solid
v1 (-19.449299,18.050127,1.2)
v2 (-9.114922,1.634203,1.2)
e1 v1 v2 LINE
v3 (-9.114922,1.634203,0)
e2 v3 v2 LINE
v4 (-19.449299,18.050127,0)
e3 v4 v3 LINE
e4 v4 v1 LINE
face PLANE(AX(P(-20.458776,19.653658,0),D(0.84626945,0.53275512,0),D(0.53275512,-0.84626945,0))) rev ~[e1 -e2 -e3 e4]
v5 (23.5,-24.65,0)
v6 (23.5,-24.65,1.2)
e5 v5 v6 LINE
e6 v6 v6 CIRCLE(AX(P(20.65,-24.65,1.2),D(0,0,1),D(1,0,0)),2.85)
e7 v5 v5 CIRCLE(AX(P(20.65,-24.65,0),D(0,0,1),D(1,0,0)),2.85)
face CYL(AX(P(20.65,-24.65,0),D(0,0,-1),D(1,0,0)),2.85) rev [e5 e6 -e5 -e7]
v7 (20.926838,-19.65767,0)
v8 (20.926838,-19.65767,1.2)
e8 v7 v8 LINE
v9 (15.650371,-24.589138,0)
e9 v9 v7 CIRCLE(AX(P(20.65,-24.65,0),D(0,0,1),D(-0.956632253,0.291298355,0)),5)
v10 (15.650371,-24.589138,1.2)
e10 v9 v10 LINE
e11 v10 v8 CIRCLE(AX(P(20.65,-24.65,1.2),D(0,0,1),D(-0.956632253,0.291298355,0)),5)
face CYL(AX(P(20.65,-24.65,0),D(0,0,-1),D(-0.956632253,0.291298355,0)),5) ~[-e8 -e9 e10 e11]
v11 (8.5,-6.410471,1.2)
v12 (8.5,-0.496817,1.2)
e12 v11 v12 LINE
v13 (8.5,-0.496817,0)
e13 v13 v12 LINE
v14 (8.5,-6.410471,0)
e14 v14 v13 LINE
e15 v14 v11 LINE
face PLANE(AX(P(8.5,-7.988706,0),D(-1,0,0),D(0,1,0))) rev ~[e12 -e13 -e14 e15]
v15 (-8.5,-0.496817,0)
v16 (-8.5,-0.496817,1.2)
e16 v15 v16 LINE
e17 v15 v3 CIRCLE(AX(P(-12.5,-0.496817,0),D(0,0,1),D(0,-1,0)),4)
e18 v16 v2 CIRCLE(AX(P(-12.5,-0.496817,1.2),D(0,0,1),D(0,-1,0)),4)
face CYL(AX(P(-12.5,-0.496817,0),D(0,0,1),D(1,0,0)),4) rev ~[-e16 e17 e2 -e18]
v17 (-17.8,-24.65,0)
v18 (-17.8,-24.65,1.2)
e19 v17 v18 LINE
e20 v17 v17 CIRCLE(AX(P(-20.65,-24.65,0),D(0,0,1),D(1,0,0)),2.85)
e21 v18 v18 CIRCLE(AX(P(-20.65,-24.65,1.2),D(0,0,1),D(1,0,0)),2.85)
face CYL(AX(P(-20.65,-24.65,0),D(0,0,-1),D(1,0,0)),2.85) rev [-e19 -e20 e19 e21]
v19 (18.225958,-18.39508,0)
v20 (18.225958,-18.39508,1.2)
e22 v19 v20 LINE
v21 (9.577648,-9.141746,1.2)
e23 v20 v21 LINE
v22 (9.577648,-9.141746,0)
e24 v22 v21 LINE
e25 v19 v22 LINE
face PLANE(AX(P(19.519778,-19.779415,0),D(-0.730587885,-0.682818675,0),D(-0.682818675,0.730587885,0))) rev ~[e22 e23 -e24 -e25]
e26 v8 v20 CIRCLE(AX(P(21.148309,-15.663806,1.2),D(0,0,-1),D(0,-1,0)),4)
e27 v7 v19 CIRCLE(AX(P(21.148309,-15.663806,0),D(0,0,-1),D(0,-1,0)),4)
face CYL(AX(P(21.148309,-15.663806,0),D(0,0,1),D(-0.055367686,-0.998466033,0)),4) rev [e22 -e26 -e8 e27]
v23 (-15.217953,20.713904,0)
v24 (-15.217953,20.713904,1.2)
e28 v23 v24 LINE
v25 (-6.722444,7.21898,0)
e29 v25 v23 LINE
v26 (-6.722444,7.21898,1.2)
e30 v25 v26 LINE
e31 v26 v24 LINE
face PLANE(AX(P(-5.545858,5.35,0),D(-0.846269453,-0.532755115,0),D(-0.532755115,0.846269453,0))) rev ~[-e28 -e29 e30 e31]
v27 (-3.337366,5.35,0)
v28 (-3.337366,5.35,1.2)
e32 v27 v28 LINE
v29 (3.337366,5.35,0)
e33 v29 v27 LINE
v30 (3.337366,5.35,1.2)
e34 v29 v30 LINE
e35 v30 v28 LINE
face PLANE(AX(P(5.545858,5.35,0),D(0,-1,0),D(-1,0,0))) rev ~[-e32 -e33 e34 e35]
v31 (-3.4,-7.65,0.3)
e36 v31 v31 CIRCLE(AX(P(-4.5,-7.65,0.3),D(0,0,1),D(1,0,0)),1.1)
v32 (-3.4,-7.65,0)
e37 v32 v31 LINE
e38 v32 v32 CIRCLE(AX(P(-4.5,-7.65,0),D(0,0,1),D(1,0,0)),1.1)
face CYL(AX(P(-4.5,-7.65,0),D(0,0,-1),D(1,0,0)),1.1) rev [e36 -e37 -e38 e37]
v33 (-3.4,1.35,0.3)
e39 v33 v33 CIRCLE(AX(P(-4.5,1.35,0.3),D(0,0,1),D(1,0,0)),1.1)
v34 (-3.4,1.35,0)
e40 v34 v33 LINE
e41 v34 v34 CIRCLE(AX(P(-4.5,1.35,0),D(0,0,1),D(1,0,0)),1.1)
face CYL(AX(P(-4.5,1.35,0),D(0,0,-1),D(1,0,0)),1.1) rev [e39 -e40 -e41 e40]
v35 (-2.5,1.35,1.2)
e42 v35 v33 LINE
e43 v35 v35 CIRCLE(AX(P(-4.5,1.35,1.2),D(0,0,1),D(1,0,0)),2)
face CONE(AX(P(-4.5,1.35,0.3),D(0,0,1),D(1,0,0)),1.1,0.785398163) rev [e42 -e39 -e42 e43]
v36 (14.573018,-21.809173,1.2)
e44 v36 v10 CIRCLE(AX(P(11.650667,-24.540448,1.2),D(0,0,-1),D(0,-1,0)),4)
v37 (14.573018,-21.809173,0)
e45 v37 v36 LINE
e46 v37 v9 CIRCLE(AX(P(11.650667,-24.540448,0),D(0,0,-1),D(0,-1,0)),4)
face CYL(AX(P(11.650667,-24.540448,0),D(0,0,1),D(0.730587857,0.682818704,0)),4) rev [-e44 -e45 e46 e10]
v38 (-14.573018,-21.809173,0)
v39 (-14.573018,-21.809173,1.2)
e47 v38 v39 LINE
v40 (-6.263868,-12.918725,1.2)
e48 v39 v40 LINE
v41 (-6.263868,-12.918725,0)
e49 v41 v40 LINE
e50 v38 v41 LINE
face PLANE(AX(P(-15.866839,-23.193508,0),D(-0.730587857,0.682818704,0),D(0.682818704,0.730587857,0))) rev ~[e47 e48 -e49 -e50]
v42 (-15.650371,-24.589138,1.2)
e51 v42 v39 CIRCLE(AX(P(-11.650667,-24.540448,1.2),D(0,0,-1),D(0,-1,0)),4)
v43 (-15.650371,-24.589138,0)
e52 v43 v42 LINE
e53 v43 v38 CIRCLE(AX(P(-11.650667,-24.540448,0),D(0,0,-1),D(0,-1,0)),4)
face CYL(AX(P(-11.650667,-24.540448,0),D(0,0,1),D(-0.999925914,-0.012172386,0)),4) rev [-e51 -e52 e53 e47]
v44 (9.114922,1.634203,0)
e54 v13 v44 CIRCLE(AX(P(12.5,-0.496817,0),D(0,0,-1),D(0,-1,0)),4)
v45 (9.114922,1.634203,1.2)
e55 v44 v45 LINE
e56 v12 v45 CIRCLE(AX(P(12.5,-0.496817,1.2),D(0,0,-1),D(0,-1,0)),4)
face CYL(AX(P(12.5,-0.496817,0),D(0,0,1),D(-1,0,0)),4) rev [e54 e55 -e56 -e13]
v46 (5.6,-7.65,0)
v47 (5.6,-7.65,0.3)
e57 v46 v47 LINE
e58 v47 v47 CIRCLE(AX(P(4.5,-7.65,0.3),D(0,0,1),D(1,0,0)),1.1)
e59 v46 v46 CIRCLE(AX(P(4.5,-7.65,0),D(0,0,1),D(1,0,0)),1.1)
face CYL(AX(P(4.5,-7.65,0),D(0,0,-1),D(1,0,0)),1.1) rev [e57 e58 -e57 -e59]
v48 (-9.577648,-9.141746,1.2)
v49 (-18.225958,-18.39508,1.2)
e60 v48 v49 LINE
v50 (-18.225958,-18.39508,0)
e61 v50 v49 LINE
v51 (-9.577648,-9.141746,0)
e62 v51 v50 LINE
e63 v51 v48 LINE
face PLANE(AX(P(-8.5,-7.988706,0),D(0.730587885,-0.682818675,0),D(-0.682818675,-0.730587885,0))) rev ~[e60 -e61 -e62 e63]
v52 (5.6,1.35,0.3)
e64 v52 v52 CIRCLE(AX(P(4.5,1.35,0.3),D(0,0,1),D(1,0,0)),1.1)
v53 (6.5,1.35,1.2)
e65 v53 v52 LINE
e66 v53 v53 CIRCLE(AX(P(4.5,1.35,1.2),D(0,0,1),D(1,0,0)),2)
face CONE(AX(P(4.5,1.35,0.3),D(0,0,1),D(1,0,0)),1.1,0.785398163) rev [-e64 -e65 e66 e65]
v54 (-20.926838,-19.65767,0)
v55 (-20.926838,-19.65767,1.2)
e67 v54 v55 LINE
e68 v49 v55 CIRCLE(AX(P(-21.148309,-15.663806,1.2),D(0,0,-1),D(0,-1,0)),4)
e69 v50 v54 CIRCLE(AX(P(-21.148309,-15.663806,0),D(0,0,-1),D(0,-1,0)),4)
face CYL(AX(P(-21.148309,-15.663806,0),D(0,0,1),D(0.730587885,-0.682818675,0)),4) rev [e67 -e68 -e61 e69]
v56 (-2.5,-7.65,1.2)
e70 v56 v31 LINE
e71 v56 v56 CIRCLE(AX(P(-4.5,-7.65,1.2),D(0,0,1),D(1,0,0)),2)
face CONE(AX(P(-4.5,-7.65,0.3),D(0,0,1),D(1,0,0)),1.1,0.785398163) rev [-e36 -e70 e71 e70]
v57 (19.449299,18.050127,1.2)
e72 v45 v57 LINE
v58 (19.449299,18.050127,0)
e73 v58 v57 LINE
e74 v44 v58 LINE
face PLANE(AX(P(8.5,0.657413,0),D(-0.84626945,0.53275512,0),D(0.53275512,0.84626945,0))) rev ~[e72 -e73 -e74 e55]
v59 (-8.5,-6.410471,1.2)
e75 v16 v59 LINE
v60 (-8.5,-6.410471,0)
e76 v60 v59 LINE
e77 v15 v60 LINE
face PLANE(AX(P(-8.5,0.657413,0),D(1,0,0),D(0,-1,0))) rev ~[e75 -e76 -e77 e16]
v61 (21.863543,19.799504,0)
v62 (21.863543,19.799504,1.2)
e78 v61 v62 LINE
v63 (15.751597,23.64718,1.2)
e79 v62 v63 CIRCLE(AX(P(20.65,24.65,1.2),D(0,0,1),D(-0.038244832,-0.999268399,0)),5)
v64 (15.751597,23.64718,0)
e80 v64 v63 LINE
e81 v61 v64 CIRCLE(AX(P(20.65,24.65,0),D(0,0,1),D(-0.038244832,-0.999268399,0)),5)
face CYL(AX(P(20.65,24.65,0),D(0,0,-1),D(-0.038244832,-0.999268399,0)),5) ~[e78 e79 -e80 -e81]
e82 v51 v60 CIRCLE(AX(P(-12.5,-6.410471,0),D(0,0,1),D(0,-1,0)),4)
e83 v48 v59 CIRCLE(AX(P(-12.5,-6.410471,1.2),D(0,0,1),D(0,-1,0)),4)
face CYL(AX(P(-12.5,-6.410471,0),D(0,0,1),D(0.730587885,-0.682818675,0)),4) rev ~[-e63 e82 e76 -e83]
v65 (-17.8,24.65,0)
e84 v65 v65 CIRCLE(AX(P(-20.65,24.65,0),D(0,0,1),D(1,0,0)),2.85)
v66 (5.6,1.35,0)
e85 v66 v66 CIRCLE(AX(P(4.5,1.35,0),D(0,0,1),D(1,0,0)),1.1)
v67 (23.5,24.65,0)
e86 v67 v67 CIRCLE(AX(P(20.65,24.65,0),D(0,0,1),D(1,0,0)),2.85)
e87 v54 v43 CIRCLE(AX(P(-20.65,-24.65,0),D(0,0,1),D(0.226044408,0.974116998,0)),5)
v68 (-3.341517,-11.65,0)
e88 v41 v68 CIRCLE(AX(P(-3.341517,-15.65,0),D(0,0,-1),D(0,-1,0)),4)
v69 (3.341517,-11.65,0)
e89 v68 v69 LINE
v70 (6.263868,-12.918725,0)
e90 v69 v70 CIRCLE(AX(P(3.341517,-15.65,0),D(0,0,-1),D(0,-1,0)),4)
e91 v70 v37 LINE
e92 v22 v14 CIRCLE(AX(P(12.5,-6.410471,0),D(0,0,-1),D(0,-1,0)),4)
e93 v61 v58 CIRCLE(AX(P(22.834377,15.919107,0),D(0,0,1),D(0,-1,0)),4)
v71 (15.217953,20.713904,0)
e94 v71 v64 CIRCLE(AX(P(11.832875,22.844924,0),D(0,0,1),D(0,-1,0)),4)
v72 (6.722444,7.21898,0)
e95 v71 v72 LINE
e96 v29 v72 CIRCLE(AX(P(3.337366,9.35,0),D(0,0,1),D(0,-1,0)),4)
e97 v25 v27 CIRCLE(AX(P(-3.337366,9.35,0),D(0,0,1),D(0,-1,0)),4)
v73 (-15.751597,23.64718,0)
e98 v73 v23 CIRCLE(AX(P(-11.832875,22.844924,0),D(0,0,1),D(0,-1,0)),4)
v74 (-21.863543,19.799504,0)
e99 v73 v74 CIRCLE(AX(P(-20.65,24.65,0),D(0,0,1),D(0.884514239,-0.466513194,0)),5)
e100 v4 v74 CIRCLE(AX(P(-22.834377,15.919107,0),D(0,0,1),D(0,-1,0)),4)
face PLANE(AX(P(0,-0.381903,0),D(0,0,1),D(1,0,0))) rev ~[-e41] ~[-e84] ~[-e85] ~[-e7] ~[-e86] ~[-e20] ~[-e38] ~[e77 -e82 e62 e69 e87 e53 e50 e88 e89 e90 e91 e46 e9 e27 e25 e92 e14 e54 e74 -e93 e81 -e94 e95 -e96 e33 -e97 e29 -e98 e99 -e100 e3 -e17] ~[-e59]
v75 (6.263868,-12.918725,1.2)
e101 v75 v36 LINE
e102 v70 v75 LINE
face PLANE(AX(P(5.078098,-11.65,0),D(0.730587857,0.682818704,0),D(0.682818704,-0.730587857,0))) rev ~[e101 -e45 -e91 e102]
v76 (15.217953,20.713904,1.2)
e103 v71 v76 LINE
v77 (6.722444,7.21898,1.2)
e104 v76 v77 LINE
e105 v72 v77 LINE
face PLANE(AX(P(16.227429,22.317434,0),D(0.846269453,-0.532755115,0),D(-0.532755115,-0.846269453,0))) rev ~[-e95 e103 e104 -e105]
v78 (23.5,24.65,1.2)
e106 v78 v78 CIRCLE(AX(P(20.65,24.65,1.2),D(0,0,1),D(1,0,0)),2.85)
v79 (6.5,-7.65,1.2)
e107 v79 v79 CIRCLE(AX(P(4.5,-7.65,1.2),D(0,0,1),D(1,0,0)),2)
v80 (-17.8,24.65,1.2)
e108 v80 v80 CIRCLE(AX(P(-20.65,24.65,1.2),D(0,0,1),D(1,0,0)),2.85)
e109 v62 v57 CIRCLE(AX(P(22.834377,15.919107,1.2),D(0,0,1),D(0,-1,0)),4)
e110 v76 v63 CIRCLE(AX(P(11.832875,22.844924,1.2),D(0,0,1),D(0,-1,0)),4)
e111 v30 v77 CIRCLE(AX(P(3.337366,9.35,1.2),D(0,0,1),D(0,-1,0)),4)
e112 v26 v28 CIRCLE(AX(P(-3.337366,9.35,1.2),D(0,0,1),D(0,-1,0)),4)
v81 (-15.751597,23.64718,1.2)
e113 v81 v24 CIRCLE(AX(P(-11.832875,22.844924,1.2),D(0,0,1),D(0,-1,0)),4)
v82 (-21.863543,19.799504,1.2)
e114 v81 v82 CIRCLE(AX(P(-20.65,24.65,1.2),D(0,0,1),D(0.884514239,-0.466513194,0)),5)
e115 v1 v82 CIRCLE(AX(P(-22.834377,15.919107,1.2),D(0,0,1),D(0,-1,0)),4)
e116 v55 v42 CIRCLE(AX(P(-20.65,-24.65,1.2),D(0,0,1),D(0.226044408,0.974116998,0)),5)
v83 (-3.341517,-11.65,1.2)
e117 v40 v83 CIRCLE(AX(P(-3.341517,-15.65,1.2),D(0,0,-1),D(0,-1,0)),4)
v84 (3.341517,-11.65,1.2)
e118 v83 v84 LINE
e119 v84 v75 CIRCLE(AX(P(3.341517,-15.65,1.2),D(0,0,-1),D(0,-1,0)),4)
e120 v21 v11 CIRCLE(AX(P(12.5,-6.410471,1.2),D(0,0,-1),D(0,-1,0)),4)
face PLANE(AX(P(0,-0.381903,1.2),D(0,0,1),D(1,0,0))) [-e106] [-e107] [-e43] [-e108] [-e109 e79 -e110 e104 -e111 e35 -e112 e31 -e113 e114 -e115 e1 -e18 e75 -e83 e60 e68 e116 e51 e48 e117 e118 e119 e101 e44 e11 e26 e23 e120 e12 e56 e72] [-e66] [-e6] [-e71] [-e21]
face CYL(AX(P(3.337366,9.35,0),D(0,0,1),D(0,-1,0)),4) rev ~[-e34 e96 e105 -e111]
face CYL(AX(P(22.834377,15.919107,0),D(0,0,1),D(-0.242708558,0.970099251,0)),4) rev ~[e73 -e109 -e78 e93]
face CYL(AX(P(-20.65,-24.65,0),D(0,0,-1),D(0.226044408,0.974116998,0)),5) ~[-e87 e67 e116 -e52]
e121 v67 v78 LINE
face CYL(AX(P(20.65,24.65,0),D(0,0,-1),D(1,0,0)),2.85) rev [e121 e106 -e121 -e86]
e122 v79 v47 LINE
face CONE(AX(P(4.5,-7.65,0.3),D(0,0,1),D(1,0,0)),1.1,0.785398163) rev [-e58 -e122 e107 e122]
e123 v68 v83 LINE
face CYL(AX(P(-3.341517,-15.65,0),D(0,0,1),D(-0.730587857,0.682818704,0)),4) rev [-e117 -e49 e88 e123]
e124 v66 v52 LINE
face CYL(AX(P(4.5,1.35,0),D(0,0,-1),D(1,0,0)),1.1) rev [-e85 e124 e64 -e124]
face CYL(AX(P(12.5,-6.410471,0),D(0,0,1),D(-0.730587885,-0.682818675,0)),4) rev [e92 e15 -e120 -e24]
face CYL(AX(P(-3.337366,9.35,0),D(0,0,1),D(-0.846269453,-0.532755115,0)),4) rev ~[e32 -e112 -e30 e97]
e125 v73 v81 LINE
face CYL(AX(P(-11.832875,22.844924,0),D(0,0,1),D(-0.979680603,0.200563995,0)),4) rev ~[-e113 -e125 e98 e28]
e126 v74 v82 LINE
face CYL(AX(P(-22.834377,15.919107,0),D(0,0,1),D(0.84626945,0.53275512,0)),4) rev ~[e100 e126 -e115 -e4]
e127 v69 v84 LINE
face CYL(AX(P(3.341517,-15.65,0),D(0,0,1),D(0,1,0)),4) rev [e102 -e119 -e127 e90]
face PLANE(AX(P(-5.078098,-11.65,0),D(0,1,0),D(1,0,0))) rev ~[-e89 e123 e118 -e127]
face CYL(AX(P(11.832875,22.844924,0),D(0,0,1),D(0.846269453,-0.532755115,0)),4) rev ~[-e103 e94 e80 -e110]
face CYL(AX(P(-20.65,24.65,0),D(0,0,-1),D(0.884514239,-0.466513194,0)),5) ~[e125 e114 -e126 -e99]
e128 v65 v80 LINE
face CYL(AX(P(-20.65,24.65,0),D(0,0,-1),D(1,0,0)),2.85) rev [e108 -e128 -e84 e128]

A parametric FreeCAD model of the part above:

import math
import FreeCAD as App
import Part
import Sketcher

V = App.Vector


def edges_at(feature, points):
    """Names of the edges that pass closest to the given points."""
    edges = feature.Shape.Edges
    near = lambda p: min(range(len(edges)), key=lambda i: edges[i].distToShape(Part.Vertex(*p))[0])
    return sorted({f"Edge{near(p) + 1}" for p in points})

doc = App.newDocument("Part")
body = doc.addObject("PartDesign::Body", "Body")

# Sketch on XY plane
sketch1 = body.newObject("Sketcher::SketchObject", "Sketch")
sketch1.AttachmentSupport = (doc.getObject("XY_Plane"), [""])
sketch1.MapMode = "FlatFace"
sketch1.addGeometry([
    Part.LineSegment(V(-8.5, -7.988706, 0), V(-19.519778, -19.779415, 0)),  # 0
    Part.ArcOfCircle(Part.Circle(V(-20.65, -24.65, 0), V(0, 0, 1), 5), math.radians(76.935699), math.radians(376.935703)),  # 1
    Part.LineSegment(V(-15.866839, -23.193508, 0), V(-5.078098, -11.65, 0)),  # 2
    Part.LineSegment(V(-5.078098, -11.65, 0), V(5.078098, -11.65, 0)),  # 3
    Part.LineSegment(V(5.078098, -11.65, 0), V(15.866839, -23.193508, 0)),  # 4
    Part.ArcOfCircle(Part.Circle(V(20.65, -24.65, 0), V(0, 0, 1), 5), math.radians(163.064297), math.radians(463.064301)),  # 5
    Part.LineSegment(V(19.519778, -19.779415, 0), V(8.5, -7.988706, 0)),  # 6
    Part.LineSegment(V(8.5, -7.988706, 0), V(8.5, 0.657413, 0)),  # 7
    Part.LineSegment(V(8.5, 0.657413, 0), V(20.458776, 19.653658, 0)),  # 8
    Part.ArcOfCircle(Part.Circle(V(20.65, 24.65, 0), V(0, 0, 1), 5), math.radians(-92.191802), math.radians(207.808197)),  # 9
    Part.LineSegment(V(16.227429, 22.317434, 0), V(5.545858, 5.35, 0)),  # 10
    Part.LineSegment(V(5.545858, 5.35, 0), V(-5.545858, 5.35, 0)),  # 11
    Part.LineSegment(V(-5.545858, 5.35, 0), V(-16.227429, 22.317434, 0)),  # 12
    Part.ArcOfCircle(Part.Circle(V(-20.65, 24.65, 0), V(0, 0, 1), 5), math.radians(-27.808197), math.radians(272.191802)),  # 13
    Part.LineSegment(V(-20.458776, 19.653658, 0), V(-8.5, 0.657413, 0)),  # 14
    Part.LineSegment(V(-8.5, 0.657413, 0), V(-8.5, -7.988706, 0)),  # 15
    Part.Circle(V(-20.65, -24.65, 0), V(0, 0, 1), 2.85),  # 16
    Part.Circle(V(-4.5, -7.65, 0), V(0, 0, 1), 1.1),  # 17
    Part.Circle(V(20.65, -24.65, 0), V(0, 0, 1), 2.85),  # 18
    Part.Circle(V(4.5, -7.65, 0), V(0, 0, 1), 1.1),  # 19
    Part.Circle(V(-4.5, 1.35, 0), V(0, 0, 1), 1.1),  # 20
    Part.Circle(V(-20.65, 24.65, 0), V(0, 0, 1), 2.85),  # 21
    Part.Circle(V(4.5, 1.35, 0), V(0, 0, 1), 1.1),  # 22
    Part.Circle(V(20.65, 24.65, 0), V(0, 0, 1), 2.85),  # 23
], False)
sketch1.addConstraint([
    Sketcher.Constraint("Coincident", 0, 2, 1, 1),
    Sketcher.Constraint("Coincident", 1, 2, 2, 1),
    Sketcher.Constraint("Coincident", 2, 2, 3, 1),
    Sketcher.Constraint("Coincident", 3, 2, 4, 1),
    Sketcher.Constraint("Coincident", 4, 2, 5, 1),
    Sketcher.Constraint("Coincident", 5, 2, 6, 1),
    Sketcher.Constraint("Coincident", 6, 2, 7, 1),
    Sketcher.Constraint("Coincident", 7, 2, 8, 1),
    Sketcher.Constraint("Coincident", 8, 2, 9, 1),
    Sketcher.Constraint("Coincident", 9, 2, 10, 1),
    Sketcher.Constraint("Coincident", 10, 2, 11, 1),
    Sketcher.Constraint("Coincident", 11, 2, 12, 1),
    Sketcher.Constraint("Coincident", 12, 2, 13, 1),
    Sketcher.Constraint("Coincident", 13, 2, 14, 1),
    Sketcher.Constraint("Coincident", 14, 2, 15, 1),
    Sketcher.Constraint("Coincident", 15, 2, 0, 1),
    Sketcher.Constraint("Horizontal", 3),
    Sketcher.Constraint("Vertical", 7),
    Sketcher.Constraint("Horizontal", 11),
    Sketcher.Constraint("Vertical", 15),
    Sketcher.Constraint("Coincident", 16, 3, 1, 3),
    Sketcher.Constraint("Coincident", 18, 3, 5, 3),
    Sketcher.Constraint("Coincident", 21, 3, 13, 3),
    Sketcher.Constraint("Coincident", 23, 3, 9, 3),
    Sketcher.Constraint("Equal", 1, 5),
    Sketcher.Constraint("Equal", 5, 9),
    Sketcher.Constraint("Equal", 9, 13),
    Sketcher.Constraint("Equal", 16, 18),
    Sketcher.Constraint("Equal", 17, 19),
    Sketcher.Constraint("Equal", 19, 20),
    Sketcher.Constraint("Equal", 18, 21),
    Sketcher.Constraint("Equal", 20, 22),
    Sketcher.Constraint("Equal", 21, 23),
    Sketcher.Constraint("Symmetric", 1, 3, 9, 3, -1, 1),
    Sketcher.Constraint("Symmetric", 5, 3, 13, 3, -1, 1),
    Sketcher.Constraint("Symmetric", 1, 3, 5, 3, -2),
    Sketcher.Constraint("Symmetric", 17, 3, 19, 3, -2),
    Sketcher.Constraint("Symmetric", 20, 3, 22, 3, -2),
    Sketcher.Constraint("Symmetric", 7, 2, 14, 2, -2),
    Sketcher.Constraint("Parallel", 0, 2),
    Sketcher.Constraint("Parallel", 4, 6),
    Sketcher.Constraint("Parallel", 8, 10),
    Sketcher.Constraint("Parallel", 12, 14),
    Sketcher.Constraint("Horizontal", 1, 2, 4, 2),
    Sketcher.Constraint("Horizontal", 0, 2, 5, 2),
    Sketcher.Constraint("Horizontal", 9, 2, 12, 2),
    Sketcher.Constraint("Horizontal", 8, 2, 13, 2),
    Sketcher.Constraint("Horizontal", 6, 2, 15, 2),
    Sketcher.Constraint("Vertical", 17, 3, 20, 3),
    Sketcher.Constraint("Radius", 1, 5.0),
    Sketcher.Constraint("Diameter", 16, 5.7),
    Sketcher.Constraint("Diameter", 17, 2.2),
    Sketcher.Constraint("DistanceY", 1, 3, 17, 3, 17.0),
    Sketcher.Constraint("DistanceX", 17, 3, 19, 3, 9.0),
    Sketcher.Constraint("DistanceY", 17, 3, 20, 3, 9.0),
    Sketcher.Constraint("DistanceY", 2, 2, 17, 3, 4.0),
    Sketcher.Constraint("DistanceX", 19, 3, 6, 2, 4.0),
    Sketcher.Constraint("DistanceY", 22, 3, 10, 2, 4.0),
    Sketcher.Constraint("DistanceX", 1, 3, 5, 3, 41.3),
    Sketcher.Constraint("DistanceY", 5, 3, 9, 3, 49.3),
    Sketcher.Constraint("Distance", 2, 15.800301),
    Sketcher.Constraint("DistanceY", 7, 1, 7, 2, 8.646119),
    Sketcher.Constraint("DistanceX", 2, 2, 19, 3, 9.578098),
    Sketcher.Constraint("Distance", 0, 16.138659),
    Sketcher.Constraint("Distance", 8, 22.447041),
    Sketcher.Constraint("DistanceX", 11, 2, 11, 1, 11.091716),
])
pad1 = body.newObject("PartDesign::Pad", "Pad")
pad1.Profile = sketch1
pad1.Length = 1.2
doc.recompute()

fillet = body.newObject("PartDesign::Fillet", "Fillet")
fillet.Base = (pad1, edges_at(pad1, [
    (-5.546, 5.35, 0.6),
    (5.546, 5.35, 0.6),
    (-16.227, 22.317, 0.6),
    (-20.459, 19.654, 0.6),
    (16.227, 22.317, 0.6),
    (20.459, 19.654, 0.6),
    (8.5, 0.657, 0.6),
    (8.5, -7.989, 0.6),
    (19.52, -19.779, 0.6),
    (15.867, -23.194, 0.6),
    (5.078, -11.65, 0.6),
    (-5.078, -11.65, 0.6),
    (-15.867, -23.194, 0.6),
    (-8.5, 0.657, 0.6),
    (-8.5, -7.989, 0.6),
    (-19.52, -19.779, 0.6),
]))
fillet.Radius = 4
doc.recompute()

chamfer = body.newObject("PartDesign::Chamfer", "Chamfer")
chamfer.Base = (fillet, edges_at(fillet, [
    (-5.6, 1.35, 1.2),
    (3.4, 1.35, 1.2),
    (3.4, -7.65, 1.2),
    (-5.6, -7.65, 1.2),
]))
chamfer.Size = 0.9

doc.recompute()
